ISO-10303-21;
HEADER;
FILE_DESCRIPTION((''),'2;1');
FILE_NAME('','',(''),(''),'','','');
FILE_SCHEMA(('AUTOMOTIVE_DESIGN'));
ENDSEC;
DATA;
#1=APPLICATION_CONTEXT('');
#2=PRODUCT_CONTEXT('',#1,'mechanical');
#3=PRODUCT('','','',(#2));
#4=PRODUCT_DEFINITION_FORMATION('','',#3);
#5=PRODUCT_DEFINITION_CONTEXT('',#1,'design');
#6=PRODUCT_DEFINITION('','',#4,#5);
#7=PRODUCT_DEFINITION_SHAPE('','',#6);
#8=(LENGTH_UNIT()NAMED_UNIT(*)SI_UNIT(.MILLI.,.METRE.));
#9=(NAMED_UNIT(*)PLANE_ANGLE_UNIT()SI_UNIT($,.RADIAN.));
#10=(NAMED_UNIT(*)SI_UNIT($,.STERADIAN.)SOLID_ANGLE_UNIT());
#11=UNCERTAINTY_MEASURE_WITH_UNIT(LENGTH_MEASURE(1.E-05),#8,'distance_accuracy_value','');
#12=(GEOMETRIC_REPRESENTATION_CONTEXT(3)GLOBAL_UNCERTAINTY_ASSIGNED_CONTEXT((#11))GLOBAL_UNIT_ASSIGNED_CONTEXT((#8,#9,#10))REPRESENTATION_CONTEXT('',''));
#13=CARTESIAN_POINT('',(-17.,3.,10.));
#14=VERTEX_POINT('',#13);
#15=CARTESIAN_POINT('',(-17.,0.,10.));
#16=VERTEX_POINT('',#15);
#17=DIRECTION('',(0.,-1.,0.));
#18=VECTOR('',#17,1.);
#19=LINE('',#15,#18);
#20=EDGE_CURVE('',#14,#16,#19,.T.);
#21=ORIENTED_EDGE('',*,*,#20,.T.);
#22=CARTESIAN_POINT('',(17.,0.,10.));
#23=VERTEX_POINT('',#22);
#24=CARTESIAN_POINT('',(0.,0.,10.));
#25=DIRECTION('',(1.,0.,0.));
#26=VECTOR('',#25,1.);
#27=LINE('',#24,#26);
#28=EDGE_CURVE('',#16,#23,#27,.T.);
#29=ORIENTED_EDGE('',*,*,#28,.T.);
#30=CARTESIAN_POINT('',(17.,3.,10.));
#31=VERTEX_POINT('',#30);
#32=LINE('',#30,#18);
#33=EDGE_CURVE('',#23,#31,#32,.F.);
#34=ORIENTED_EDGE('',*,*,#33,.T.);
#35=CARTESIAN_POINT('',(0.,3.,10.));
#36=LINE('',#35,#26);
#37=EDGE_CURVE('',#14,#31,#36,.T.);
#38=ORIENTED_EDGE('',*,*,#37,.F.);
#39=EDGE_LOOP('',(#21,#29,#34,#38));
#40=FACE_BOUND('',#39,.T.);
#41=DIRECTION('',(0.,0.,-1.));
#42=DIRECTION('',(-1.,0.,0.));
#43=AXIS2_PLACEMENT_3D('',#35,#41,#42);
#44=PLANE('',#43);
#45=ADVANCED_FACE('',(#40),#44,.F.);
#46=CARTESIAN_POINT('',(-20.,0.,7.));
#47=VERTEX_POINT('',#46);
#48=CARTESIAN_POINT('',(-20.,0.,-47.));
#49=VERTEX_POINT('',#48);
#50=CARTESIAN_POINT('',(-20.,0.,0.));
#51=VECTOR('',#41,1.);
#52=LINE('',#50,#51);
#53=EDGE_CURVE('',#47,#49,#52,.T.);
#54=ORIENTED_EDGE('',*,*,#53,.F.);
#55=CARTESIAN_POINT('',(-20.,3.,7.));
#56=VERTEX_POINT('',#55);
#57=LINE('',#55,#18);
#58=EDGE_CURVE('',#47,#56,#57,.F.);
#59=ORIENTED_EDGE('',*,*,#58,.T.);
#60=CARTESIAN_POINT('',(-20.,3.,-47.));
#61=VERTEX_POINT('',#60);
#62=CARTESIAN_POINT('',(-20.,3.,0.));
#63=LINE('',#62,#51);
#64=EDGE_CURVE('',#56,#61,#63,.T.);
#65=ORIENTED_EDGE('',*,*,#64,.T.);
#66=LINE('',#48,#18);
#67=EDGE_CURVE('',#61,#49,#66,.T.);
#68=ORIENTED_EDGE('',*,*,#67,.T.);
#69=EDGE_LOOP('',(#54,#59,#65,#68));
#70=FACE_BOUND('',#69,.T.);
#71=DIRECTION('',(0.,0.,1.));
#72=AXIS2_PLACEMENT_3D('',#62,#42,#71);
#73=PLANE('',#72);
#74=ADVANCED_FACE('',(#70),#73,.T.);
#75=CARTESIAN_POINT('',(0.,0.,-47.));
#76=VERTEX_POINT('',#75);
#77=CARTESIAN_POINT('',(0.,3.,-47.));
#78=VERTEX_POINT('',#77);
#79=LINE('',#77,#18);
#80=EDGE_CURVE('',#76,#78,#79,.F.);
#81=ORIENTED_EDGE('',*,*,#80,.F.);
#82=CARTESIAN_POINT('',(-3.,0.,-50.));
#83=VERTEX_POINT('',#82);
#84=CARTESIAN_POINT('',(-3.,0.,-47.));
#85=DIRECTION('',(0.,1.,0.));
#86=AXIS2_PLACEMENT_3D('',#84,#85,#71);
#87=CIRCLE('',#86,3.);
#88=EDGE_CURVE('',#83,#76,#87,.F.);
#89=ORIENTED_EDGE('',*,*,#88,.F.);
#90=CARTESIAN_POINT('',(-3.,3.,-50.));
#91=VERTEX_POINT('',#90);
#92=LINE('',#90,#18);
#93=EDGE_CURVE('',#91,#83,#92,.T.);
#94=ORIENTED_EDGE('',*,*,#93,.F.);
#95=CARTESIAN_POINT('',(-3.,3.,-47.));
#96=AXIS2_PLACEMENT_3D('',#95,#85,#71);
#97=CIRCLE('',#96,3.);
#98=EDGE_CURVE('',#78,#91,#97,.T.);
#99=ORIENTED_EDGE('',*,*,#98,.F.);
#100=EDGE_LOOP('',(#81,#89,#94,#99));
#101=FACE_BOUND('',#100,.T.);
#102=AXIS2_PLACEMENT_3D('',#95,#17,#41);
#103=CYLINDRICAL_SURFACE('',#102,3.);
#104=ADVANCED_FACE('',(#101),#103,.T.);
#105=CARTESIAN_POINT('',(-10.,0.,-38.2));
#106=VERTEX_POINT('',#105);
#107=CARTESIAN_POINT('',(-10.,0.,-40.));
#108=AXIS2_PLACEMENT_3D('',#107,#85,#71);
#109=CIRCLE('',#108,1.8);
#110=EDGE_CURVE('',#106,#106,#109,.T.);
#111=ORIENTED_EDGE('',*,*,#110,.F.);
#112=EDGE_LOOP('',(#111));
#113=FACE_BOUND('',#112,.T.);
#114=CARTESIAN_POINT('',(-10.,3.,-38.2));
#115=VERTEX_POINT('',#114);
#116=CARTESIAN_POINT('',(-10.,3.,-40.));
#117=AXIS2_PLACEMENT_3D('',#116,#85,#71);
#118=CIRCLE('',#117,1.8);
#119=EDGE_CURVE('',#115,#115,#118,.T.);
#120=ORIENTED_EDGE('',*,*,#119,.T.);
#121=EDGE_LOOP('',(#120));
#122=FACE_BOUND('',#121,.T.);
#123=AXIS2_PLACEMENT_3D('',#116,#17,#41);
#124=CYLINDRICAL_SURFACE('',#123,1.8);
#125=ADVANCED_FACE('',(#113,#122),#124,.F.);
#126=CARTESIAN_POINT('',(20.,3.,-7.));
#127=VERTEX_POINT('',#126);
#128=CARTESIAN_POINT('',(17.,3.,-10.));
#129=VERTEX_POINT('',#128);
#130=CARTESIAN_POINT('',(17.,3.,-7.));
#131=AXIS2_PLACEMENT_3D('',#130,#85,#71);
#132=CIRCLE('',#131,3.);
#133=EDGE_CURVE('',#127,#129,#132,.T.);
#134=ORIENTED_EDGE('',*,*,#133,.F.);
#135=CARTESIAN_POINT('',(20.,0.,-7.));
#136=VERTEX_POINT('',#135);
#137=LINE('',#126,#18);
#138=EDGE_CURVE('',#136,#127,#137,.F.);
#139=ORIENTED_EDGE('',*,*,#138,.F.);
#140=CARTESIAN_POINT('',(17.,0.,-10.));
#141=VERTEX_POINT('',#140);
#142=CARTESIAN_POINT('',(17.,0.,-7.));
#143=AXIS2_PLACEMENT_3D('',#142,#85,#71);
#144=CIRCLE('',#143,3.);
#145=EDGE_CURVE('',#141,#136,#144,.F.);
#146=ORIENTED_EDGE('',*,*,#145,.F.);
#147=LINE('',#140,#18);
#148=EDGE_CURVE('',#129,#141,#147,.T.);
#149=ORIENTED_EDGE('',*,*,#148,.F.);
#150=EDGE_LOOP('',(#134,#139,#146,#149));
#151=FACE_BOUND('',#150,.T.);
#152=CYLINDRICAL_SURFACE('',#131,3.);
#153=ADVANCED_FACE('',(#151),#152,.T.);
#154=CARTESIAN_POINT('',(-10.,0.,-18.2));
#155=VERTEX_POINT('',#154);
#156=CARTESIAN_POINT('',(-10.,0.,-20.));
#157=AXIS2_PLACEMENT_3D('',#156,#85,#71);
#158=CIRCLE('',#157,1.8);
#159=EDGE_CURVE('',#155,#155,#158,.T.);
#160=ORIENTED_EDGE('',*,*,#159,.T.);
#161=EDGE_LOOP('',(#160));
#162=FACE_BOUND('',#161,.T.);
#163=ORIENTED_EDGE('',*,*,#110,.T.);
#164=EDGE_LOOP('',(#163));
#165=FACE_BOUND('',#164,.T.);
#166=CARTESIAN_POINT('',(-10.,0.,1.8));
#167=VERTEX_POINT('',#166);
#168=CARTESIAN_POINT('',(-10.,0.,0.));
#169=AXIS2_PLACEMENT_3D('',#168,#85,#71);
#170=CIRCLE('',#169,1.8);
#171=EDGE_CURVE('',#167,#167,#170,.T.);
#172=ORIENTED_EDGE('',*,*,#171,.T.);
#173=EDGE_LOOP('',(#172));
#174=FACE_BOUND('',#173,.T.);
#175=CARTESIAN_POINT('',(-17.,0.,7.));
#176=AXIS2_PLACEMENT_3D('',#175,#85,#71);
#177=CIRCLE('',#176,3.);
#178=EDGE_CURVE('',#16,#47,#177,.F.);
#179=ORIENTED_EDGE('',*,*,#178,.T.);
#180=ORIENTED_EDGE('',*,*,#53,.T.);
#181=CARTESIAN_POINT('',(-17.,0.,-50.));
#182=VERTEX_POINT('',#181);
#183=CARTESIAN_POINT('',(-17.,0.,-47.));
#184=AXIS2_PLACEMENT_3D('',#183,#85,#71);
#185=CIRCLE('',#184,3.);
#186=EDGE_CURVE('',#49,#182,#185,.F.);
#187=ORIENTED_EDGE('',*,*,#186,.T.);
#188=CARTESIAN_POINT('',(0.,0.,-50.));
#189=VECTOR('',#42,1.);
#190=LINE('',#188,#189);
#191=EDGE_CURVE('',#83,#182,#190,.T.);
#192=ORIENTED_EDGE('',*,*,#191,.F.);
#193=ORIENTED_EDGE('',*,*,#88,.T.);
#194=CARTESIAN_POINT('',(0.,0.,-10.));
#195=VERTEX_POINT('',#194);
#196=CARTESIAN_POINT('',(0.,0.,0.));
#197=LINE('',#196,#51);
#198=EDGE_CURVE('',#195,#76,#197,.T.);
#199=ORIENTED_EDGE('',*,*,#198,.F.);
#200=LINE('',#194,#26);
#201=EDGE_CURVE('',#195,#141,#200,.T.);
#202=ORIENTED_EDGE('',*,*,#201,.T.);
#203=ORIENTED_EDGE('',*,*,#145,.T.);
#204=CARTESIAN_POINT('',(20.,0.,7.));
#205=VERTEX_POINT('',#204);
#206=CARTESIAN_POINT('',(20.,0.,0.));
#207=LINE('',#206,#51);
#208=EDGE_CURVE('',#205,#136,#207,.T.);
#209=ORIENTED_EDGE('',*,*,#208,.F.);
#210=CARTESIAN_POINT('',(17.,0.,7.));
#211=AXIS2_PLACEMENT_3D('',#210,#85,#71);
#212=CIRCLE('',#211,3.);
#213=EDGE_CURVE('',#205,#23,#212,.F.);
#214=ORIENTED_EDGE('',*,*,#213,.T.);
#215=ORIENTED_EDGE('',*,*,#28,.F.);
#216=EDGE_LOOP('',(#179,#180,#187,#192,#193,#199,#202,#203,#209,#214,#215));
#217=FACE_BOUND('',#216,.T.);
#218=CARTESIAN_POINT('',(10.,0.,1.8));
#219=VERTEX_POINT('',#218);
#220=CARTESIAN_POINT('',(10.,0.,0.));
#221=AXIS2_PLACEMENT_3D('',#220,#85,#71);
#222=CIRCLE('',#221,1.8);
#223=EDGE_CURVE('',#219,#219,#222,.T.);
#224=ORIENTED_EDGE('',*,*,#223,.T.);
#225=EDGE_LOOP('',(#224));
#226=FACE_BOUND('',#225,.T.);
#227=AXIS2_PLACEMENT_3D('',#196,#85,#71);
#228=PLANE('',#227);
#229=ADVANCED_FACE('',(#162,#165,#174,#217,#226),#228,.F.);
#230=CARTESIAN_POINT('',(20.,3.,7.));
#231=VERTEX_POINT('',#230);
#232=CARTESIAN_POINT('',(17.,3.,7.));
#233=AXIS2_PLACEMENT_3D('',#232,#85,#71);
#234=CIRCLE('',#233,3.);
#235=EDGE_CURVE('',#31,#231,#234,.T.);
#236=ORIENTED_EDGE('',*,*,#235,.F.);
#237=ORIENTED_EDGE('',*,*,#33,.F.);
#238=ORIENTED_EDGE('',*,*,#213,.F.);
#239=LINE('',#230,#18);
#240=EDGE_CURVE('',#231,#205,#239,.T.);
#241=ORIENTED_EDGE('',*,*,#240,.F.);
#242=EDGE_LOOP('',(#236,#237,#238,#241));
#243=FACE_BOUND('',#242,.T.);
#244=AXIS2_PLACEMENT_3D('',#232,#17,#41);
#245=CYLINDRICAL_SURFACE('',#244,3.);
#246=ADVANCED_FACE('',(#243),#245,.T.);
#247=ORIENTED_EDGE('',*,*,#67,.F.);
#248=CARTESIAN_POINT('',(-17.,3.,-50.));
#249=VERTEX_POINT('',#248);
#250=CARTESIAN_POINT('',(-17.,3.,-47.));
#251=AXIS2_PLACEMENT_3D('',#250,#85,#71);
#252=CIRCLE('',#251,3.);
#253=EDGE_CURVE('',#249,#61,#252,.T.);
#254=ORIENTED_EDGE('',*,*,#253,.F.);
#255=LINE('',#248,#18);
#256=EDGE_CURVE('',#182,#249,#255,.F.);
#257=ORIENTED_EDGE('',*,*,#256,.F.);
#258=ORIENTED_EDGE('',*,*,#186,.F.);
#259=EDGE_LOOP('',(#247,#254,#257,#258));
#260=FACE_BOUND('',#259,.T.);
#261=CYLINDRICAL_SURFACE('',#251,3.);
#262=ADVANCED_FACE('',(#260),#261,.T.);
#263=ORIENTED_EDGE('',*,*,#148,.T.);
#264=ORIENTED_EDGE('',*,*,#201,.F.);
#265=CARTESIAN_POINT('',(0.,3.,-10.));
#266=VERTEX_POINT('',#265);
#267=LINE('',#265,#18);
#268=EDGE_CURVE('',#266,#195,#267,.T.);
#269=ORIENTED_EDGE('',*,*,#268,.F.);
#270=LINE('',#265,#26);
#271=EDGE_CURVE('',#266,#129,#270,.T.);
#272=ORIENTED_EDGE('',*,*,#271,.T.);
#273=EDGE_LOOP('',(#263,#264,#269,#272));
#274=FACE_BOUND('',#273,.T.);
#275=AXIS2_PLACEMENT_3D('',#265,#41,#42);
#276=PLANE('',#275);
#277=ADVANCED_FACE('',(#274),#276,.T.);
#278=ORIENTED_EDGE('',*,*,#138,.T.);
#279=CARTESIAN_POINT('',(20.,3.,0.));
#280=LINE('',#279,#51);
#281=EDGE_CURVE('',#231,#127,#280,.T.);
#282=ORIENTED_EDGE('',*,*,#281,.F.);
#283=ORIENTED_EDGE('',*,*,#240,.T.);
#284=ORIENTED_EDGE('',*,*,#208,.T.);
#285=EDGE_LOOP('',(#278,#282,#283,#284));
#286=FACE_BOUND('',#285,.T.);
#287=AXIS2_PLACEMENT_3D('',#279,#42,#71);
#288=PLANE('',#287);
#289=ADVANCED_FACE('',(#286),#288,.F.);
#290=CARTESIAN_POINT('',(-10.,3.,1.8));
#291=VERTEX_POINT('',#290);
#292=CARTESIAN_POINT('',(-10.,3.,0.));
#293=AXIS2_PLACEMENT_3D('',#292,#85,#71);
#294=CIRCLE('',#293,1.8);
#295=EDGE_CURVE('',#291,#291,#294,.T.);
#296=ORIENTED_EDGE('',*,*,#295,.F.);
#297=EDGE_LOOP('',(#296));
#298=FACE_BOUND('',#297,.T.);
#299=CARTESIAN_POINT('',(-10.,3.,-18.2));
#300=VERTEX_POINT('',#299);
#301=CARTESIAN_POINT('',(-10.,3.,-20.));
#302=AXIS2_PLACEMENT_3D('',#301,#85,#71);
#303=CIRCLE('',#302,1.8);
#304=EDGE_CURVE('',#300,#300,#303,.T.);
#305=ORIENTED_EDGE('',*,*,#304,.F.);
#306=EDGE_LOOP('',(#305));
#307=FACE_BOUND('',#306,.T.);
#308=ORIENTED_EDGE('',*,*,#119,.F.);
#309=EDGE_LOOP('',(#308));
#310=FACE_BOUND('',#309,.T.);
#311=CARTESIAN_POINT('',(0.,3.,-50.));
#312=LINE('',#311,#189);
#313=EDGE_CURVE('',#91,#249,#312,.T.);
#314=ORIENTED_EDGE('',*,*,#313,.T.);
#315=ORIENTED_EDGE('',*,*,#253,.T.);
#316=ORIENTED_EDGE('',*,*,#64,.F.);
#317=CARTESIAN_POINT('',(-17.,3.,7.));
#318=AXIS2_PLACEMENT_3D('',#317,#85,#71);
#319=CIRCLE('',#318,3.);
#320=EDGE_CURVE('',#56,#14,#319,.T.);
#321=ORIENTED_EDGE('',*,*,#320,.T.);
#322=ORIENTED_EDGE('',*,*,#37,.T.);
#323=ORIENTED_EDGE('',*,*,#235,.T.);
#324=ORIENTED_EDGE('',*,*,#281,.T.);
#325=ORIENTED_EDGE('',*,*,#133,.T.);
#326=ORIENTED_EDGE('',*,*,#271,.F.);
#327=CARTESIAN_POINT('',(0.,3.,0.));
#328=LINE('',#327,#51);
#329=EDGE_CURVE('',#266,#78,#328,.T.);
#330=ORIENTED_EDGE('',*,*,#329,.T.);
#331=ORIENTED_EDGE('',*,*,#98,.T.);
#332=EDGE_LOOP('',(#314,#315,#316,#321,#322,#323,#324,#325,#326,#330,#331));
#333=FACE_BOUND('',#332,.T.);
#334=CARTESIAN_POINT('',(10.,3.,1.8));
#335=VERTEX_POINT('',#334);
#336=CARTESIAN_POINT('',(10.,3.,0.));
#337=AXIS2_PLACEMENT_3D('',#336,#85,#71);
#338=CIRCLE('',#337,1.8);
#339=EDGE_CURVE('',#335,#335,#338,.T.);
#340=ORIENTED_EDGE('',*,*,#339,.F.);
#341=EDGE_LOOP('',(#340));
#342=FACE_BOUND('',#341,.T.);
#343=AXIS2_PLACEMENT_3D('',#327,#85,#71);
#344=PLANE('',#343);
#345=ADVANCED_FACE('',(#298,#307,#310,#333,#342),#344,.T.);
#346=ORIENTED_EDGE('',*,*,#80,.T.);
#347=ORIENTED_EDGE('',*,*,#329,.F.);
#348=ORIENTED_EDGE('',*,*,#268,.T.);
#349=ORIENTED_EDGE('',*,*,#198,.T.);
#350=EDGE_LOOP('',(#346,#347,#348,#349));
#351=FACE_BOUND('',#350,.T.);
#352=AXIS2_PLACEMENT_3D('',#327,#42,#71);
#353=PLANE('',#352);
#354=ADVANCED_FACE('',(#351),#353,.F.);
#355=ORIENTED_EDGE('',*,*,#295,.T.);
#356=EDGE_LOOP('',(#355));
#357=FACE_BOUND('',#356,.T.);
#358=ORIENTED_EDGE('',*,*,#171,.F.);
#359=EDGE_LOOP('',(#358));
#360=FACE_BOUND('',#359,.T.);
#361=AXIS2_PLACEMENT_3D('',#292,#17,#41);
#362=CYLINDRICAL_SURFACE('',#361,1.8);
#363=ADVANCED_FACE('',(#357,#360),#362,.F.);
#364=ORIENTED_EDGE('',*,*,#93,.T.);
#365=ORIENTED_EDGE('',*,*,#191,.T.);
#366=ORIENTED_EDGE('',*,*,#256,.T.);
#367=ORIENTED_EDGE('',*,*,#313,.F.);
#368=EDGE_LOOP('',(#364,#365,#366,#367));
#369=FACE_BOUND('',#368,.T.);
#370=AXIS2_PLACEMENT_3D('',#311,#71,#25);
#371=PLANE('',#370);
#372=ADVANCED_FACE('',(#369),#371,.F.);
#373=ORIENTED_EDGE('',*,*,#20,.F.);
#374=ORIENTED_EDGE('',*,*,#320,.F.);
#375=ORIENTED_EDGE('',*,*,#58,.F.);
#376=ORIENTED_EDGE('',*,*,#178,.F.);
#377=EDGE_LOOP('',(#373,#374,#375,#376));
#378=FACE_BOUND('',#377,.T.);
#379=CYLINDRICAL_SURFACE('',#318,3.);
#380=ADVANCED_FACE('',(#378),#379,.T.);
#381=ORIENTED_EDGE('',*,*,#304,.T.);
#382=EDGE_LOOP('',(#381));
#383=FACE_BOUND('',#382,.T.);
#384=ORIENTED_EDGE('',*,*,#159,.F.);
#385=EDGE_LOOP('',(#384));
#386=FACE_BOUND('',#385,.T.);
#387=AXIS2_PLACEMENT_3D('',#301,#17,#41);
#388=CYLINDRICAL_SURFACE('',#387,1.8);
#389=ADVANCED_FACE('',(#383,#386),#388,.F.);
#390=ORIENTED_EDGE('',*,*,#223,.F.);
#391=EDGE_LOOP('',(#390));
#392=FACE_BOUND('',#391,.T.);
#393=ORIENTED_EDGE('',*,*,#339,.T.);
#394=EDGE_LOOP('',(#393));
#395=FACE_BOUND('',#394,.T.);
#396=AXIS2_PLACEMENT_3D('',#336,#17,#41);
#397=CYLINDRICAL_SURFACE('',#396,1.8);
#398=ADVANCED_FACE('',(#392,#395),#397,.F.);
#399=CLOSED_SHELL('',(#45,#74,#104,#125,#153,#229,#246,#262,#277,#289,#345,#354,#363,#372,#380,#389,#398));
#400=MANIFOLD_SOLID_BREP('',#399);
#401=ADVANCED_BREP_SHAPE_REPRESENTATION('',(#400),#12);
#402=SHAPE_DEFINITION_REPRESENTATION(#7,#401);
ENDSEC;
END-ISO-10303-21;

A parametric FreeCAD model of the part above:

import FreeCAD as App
import Part
import Sketcher
Q = App.Units.Quantity


def edges_at(feature, points):
    """Names of the edges that pass closest to the given points."""
    edges = feature.Shape.Edges
    near = lambda p: min(range(len(edges)), key=lambda i: edges[i].distToShape(Part.Vertex(*p))[0])
    return sorted({f"Edge{near(p) + 1}" for p in points})

doc = App.newDocument("Part")
body = doc.addObject("PartDesign::Body", "Body")

sketch1 = body.newObject("Sketcher::SketchObject", "Sketch")
sketch1.AttachmentSupport = (doc.getObject("XZ_Plane"), [""])
sketch1.MapMode = "FlatFace"
sketch1.addGeometry(Part.LineSegment(App.Vector(-20, -50, 0), App.Vector(-20, 10, 0)), False)
sketch1.addGeometry(Part.LineSegment(App.Vector(-20, 10, 0), App.Vector(20, 10, 0)), False)
sketch1.addGeometry(Part.LineSegment(App.Vector(20, 10, 0), App.Vector(20, -10, 0)), False)
sketch1.addGeometry(Part.LineSegment(App.Vector(20, -10, 0), App.Vector(0, -10, 0)), False)
sketch1.addGeometry(Part.LineSegment(App.Vector(0, -10, 0), App.Vector(0, -50, 0)), False)
sketch1.addGeometry(Part.LineSegment(App.Vector(0, -50, 0), App.Vector(-20, -50, 0)), False)
sketch1.addGeometry(Part.Circle(App.Vector(-10, -20, 0), App.Vector(0, 0, 1), 1.8), False)
sketch1.addGeometry(Part.Circle(App.Vector(-10, -40, 0), App.Vector(0, 0, 1), 1.8), False)
sketch1.addGeometry(Part.Circle(App.Vector(10, 0, 0), App.Vector(0, 0, 1), 1.8), False)
sketch1.addGeometry(Part.Circle(App.Vector(-10, 0, 0), App.Vector(0, 0, 1), 1.8), False)
sketch1.addConstraint(Sketcher.Constraint("Coincident", 0, 2, 1, 1))
sketch1.addConstraint(Sketcher.Constraint("Coincident", 1, 2, 2, 1))
sketch1.addConstraint(Sketcher.Constraint("Coincident", 2, 2, 3, 1))
sketch1.addConstraint(Sketcher.Constraint("Coincident", 3, 2, 4, 1))
sketch1.addConstraint(Sketcher.Constraint("Coincident", 4, 2, 5, 1))
sketch1.addConstraint(Sketcher.Constraint("Coincident", 5, 2, 0, 1))
sketch1.addConstraint(Sketcher.Constraint("Vertical", 0))
sketch1.addConstraint(Sketcher.Constraint("Horizontal", 1))
sketch1.addConstraint(Sketcher.Constraint("Vertical", 2))
sketch1.addConstraint(Sketcher.Constraint("Horizontal", 3))
sketch1.addConstraint(Sketcher.Constraint("Vertical", 4))
sketch1.addConstraint(Sketcher.Constraint("Horizontal", 5))
sketch1.addConstraint(Sketcher.Constraint("Equal", 6, 7))
sketch1.addConstraint(Sketcher.Constraint("Equal", 7, 8))
sketch1.addConstraint(Sketcher.Constraint("Equal", 8, 9))
sketch1.addConstraint(Sketcher.Constraint("Symmetric", 8, 3, 9, 3, -1, 1))
sketch1.addConstraint(Sketcher.Constraint("Symmetric", 0, 2, 2, 2, -1, 1))
sketch1.addConstraint(Sketcher.Constraint("PointOnObject", 8, 3, -1))
sketch1.addConstraint(Sketcher.Constraint("PointOnObject", 3, 2, -2))
sketch1.addConstraint(Sketcher.Constraint("Vertical", 6, 3, 7, 3))
sketch1.addConstraint(Sketcher.Constraint("Vertical", 7, 3, 9, 3))
sketch1.addConstraint(Sketcher.Constraint("Equal", 5, 2))
sketch1.addConstraint(Sketcher.Constraint("Equal", 1, 4))
sketch1.addConstraint(Sketcher.Constraint("Diameter", 6, Q("3.6 mm")))
sketch1.addConstraint(Sketcher.Constraint("DistanceX", 1, 1, 1, 2, Q("40 mm")))
sketch1.addConstraint(Sketcher.Constraint("DistanceX", 6, 3, -1, 1, Q("10 mm")))
sketch1.addConstraint(Sketcher.Constraint("DistanceY", 6, 3, -1, 1, Q("20 mm")))
sketch1.addConstraint(Sketcher.Constraint("DistanceY", 7, 3, -1, 1, Q("40 mm")))
pad1 = body.newObject("PartDesign::Pad", "Pad")
pad1.Profile = sketch1
pad1.Length = 3
pad1.Reversed = True
doc.recompute()

fillet = body.newObject("PartDesign::Fillet", "Fillet")
fillet.Base = (pad1, edges_at(pad1, [
    (-20, 1.5, -50),
    (0, 1.5, -50),
    (20, 1.5, -10),
    (20, 1.5, 10),
    (-20, 1.5, 10),
]))
fillet.Radius = 3

doc.recompute()
